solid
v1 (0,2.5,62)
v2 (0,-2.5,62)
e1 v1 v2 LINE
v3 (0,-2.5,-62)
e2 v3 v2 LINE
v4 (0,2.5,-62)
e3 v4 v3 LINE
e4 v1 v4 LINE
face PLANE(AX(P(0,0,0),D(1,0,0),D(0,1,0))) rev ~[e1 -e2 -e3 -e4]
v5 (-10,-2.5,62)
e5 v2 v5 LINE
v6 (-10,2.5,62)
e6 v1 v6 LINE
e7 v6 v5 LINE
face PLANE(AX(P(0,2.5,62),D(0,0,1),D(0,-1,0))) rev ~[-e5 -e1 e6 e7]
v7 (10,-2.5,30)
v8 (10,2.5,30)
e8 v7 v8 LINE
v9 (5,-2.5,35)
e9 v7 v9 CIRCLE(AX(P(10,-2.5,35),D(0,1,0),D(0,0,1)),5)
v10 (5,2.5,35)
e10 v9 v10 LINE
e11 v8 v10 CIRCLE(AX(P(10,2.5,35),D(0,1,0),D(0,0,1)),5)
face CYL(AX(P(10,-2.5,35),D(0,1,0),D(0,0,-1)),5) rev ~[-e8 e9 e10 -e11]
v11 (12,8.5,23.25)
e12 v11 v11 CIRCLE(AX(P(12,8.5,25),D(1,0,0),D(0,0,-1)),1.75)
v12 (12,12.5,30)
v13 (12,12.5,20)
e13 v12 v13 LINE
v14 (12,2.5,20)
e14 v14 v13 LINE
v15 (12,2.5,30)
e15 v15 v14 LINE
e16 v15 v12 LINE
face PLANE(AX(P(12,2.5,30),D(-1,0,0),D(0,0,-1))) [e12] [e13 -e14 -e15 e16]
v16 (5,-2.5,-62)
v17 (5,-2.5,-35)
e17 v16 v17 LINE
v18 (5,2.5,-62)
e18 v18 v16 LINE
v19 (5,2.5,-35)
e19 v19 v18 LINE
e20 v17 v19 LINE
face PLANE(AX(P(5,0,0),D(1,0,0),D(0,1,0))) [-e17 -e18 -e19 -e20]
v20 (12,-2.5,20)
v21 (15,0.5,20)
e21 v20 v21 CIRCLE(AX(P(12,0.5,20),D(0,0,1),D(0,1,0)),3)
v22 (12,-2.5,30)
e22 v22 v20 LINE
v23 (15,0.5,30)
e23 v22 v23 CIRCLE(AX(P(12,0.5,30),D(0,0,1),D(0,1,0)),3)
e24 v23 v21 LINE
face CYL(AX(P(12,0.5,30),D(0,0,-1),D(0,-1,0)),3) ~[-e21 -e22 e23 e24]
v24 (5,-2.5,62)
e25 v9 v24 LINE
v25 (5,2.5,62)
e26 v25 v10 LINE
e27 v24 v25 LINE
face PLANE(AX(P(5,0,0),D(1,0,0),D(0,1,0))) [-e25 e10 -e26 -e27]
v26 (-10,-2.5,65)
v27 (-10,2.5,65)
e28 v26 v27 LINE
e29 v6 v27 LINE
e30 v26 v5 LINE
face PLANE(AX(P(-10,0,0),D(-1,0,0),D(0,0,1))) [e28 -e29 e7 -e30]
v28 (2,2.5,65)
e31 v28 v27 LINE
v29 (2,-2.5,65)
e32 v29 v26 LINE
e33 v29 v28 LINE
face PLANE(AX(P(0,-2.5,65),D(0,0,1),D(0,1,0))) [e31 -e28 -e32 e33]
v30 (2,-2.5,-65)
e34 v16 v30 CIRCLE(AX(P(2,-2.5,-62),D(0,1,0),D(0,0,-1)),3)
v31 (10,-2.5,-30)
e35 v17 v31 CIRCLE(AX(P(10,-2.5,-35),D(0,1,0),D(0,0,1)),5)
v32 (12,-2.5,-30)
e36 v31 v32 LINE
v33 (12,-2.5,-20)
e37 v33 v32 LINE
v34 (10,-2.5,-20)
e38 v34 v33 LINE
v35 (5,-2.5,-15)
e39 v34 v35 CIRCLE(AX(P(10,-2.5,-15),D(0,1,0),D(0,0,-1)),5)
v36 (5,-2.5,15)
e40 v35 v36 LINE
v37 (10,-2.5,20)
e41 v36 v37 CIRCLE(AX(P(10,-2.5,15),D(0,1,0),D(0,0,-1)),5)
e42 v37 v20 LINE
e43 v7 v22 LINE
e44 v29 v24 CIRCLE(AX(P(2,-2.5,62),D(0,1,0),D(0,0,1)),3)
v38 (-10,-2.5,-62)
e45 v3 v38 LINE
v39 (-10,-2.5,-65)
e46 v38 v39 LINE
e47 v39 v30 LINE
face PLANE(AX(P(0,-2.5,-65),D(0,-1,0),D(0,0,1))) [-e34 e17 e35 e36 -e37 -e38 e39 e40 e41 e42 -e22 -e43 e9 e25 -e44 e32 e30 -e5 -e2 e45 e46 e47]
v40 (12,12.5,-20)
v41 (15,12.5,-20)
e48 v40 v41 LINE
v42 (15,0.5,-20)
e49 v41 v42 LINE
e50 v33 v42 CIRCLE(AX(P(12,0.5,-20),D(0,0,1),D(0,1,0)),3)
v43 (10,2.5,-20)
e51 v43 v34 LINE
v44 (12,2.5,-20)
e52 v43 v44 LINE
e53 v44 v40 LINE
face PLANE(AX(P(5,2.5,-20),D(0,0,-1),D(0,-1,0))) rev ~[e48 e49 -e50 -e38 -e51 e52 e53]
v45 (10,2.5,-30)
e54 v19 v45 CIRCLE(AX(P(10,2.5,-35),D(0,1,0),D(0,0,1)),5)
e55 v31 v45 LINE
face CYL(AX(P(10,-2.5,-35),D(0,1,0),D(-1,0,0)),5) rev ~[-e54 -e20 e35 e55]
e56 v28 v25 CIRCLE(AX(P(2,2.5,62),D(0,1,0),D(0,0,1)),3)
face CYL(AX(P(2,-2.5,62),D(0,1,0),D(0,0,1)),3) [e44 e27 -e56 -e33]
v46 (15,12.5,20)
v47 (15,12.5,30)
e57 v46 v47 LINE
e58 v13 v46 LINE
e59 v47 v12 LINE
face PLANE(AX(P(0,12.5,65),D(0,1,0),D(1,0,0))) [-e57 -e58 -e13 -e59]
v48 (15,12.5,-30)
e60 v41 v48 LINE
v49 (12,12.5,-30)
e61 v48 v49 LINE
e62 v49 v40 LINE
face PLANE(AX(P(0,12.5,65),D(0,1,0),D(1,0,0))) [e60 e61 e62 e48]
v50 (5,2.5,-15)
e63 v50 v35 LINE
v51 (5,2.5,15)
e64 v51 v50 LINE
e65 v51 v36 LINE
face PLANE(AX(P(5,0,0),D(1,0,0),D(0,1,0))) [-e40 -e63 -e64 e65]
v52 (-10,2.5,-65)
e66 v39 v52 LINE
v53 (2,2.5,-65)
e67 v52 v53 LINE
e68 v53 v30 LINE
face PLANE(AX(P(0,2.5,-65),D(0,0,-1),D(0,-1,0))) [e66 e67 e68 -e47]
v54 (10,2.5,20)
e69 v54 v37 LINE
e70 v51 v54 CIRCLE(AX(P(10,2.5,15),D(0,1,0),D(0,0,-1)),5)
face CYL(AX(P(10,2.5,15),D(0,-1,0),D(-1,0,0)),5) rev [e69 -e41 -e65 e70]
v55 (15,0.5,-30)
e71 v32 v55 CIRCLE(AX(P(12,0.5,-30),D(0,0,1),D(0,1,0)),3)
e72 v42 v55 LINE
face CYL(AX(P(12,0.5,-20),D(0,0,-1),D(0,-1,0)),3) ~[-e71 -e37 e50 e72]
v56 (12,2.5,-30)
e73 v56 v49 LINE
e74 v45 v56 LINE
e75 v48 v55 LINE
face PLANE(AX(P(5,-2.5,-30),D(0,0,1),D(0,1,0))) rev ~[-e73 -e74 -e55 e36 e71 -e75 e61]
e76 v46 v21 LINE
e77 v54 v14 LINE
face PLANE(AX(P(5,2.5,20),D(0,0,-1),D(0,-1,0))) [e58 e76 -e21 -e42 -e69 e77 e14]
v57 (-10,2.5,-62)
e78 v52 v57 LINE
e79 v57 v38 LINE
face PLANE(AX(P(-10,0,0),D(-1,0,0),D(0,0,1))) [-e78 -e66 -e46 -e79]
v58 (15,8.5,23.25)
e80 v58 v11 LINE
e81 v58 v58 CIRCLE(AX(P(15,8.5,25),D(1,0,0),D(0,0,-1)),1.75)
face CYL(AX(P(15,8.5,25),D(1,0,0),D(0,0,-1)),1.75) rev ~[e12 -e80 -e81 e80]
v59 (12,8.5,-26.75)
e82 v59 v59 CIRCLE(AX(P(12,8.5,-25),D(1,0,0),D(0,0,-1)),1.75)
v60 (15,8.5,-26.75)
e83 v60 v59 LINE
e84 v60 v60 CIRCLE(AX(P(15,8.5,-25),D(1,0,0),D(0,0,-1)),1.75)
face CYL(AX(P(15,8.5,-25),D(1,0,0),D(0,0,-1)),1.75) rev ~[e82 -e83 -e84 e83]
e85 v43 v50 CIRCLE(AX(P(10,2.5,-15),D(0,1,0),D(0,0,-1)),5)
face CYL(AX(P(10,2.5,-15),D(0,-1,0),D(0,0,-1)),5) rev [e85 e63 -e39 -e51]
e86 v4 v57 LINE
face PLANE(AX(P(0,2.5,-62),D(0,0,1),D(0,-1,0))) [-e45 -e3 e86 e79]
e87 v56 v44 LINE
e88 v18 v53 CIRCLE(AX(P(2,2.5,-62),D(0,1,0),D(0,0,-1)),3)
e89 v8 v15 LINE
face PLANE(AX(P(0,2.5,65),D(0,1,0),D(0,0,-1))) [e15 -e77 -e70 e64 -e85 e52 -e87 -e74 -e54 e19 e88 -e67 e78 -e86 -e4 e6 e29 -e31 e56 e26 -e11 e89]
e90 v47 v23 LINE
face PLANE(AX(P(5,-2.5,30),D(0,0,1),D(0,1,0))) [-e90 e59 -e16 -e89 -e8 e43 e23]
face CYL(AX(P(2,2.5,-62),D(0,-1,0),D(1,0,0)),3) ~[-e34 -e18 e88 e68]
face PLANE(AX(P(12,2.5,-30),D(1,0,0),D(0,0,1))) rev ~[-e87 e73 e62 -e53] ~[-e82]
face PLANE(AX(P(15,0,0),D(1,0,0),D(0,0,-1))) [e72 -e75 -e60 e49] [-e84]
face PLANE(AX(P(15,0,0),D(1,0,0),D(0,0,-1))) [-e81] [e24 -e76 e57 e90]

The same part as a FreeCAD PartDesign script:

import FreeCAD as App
import Part
import Sketcher
from FreeCAD import Vector


def edges_at(feature, points):
    """Names of the edges that pass closest to the given points."""
    edges = feature.Shape.Edges
    near = lambda p: min(range(len(edges)), key=lambda i: edges[i].distToShape(Part.Vertex(*p))[0])
    return sorted({f"Edge{near(p) + 1}" for p in points})

doc = App.newDocument("Part")
body = doc.addObject("PartDesign::Body", "Body")

# Sketch on YZ plane
sketch1 = body.newObject("Sketcher::SketchObject", "Sketch")
sketch1.AttachmentSupport = (doc.getObject("YZ_Plane"), [""])
sketch1.MapMode = "FlatFace"
sketch1.addGeometry(Part.LineSegment(Vector(-2, 65, 0), Vector(-2, -65, 0)), False)
sketch1.addGeometry(Part.LineSegment(Vector(-2, -65, 0), Vector(2, -65, 0)), False)
sketch1.addGeometry(Part.LineSegment(Vector(2, -65, 0), Vector(2, 65, 0)), False)
sketch1.addGeometry(Part.LineSegment(Vector(2, 65, 0), Vector(-2, 65, 0)), False)
sketch1.addConstraint(Sketcher.Constraint("Coincident", 0, 2, 1, 1))
sketch1.addConstraint(Sketcher.Constraint("Coincident", 1, 2, 2, 1))
sketch1.addConstraint(Sketcher.Constraint("Coincident", 2, 2, 3, 1))
sketch1.addConstraint(Sketcher.Constraint("Coincident", 3, 2, 0, 1))
sketch1.addConstraint(Sketcher.Constraint("Vertical", 0))
sketch1.addConstraint(Sketcher.Constraint("Horizontal", 1))
sketch1.addConstraint(Sketcher.Constraint("Vertical", 2))
sketch1.addConstraint(Sketcher.Constraint("Horizontal", 3))
sketch1.addConstraint(Sketcher.Constraint("Symmetric", 0, 2, 2, 2, -1, 1))
sketch1.addConstraint(Sketcher.Constraint("DistanceX", 1, 1, 1, 2, 5.0))
sketch1.addConstraint(Sketcher.Constraint("DistanceY", 0, 2, 0, 1, 130.0))
pad1 = body.newObject("PartDesign::Pad", "Pad")
pad1.Profile = sketch1
pad1.Length = 5

# Sketch on YZ plane
sketch2 = body.newObject("Sketcher::SketchObject", "Sketch001")
sketch2.AttachmentSupport = (doc.getObject("YZ_Plane"), [""])
sketch2.MapMode = "FlatFace"
sketch2.AttachmentOffset = App.Placement(Vector(0, 0, 5), App.Rotation())
sketch2.addGeometry(Part.LineSegment(Vector(-2, -30, 0), Vector(2, -30, 0)), False)
sketch2.addGeometry(Part.LineSegment(Vector(2, -30, 0), Vector(2, -20, 0)), False)
sketch2.addGeometry(Part.LineSegment(Vector(2, -20, 0), Vector(-2, -20, 0)), False)
sketch2.addGeometry(Part.LineSegment(Vector(-2, -20, 0), Vector(-2, -30, 0)), False)
sketch2.addGeometry(Part.LineSegment(Vector(-2, 20, 0), Vector(2, 20, 0)), False)
sketch2.addGeometry(Part.LineSegment(Vector(2, 20, 0), Vector(2, 30, 0)), False)
sketch2.addGeometry(Part.LineSegment(Vector(2, 30, 0), Vector(-2, 30, 0)), False)
sketch2.addGeometry(Part.LineSegment(Vector(-2, 30, 0), Vector(-2, 20, 0)), False)
sketch2.addConstraint(Sketcher.Constraint("Coincident", 0, 2, 1, 1))
sketch2.addConstraint(Sketcher.Constraint("Coincident", 1, 2, 2, 1))
sketch2.addConstraint(Sketcher.Constraint("Coincident", 2, 2, 3, 1))
sketch2.addConstraint(Sketcher.Constraint("Coincident", 3, 2, 0, 1))
sketch2.addConstraint(Sketcher.Constraint("Coincident", 4, 2, 5, 1))
sketch2.addConstraint(Sketcher.Constraint("Coincident", 5, 2, 6, 1))
sketch2.addConstraint(Sketcher.Constraint("Coincident", 6, 2, 7, 1))
sketch2.addConstraint(Sketcher.Constraint("Coincident", 7, 2, 4, 1))
sketch2.addConstraint(Sketcher.Constraint("Horizontal", 0))
sketch2.addConstraint(Sketcher.Constraint("Vertical", 1))
sketch2.addConstraint(Sketcher.Constraint("Horizontal", 2))
sketch2.addConstraint(Sketcher.Constraint("Vertical", 3))
sketch2.addConstraint(Sketcher.Constraint("Horizontal", 4))
sketch2.addConstraint(Sketcher.Constraint("Vertical", 5))
sketch2.addConstraint(Sketcher.Constraint("Horizontal", 6))
sketch2.addConstraint(Sketcher.Constraint("Vertical", 7))
sketch2.addConstraint(Sketcher.Constraint("Symmetric", 2, 2, 4, 2, -1, 1))
sketch2.addConstraint(Sketcher.Constraint("Symmetric", 0, 2, 6, 2, -1, 1))
sketch2.addConstraint(Sketcher.Constraint("Vertical", 1, 2, 4, 2))
sketch2.addConstraint(Sketcher.Constraint("DistanceY", 1, 1, 1, 2, 10.0))
sketch2.addConstraint(Sketcher.Constraint("DistanceY", 1, 2, -1, 1, 20.0))
sketch2.addConstraint(Sketcher.Constraint("DistanceX", 0, 1, 0, 2, 5.0))
pad2 = body.newObject("PartDesign::Pad", "Pad001")
pad2.Profile = sketch2
pad2.Length = 10

# Sketch on XZ plane
sketch3 = body.newObject("Sketcher::SketchObject", "Sketch002")
sketch3.AttachmentSupport = (doc.getObject("XZ_Plane"), [""])
sketch3.MapMode = "FlatFace"
sketch3.AttachmentOffset = App.Placement(Vector(0, 0, -2.5), App.Rotation())
sketch3.addGeometry(Part.LineSegment(Vector(15, 30, 0), Vector(15, 20, 0)), False)
sketch3.addGeometry(Part.LineSegment(Vector(15, 20, 0), Vector(12, 20, 0)), False)
sketch3.addGeometry(Part.LineSegment(Vector(12, 20, 0), Vector(12, 30, 0)), False)
sketch3.addGeometry(Part.LineSegment(Vector(12, 30, 0), Vector(15, 30, 0)), False)
sketch3.addGeometry(Part.LineSegment(Vector(12, -20, 0), Vector(15, -20, 0)), False)
sketch3.addGeometry(Part.LineSegment(Vector(15, -20, 0), Vector(15, -30, 0)), False)
sketch3.addGeometry(Part.LineSegment(Vector(15, -30, 0), Vector(12, -30, 0)), False)
sketch3.addGeometry(Part.LineSegment(Vector(12, -30, 0), Vector(12, -20, 0)), False)
sketch3.addConstraint(Sketcher.Constraint("Coincident", 0, 2, 1, 1))
sketch3.addConstraint(Sketcher.Constraint("Coincident", 1, 2, 2, 1))
sketch3.addConstraint(Sketcher.Constraint("Coincident", 2, 2, 3, 1))
sketch3.addConstraint(Sketcher.Constraint("Coincident", 3, 2, 0, 1))
sketch3.addConstraint(Sketcher.Constraint("Coincident", 4, 2, 5, 1))
sketch3.addConstraint(Sketcher.Constraint("Coincident", 5, 2, 6, 1))
sketch3.addConstraint(Sketcher.Constraint("Coincident", 6, 2, 7, 1))
sketch3.addConstraint(Sketcher.Constraint("Coincident", 7, 2, 4, 1))
sketch3.addConstraint(Sketcher.Constraint("Vertical", 0))
sketch3.addConstraint(Sketcher.Constraint("Horizontal", 1))
sketch3.addConstraint(Sketcher.Constraint("Vertical", 2))
sketch3.addConstraint(Sketcher.Constraint("Horizontal", 3))
sketch3.addConstraint(Sketcher.Constraint("Horizontal", 4))
sketch3.addConstraint(Sketcher.Constraint("Vertical", 5))
sketch3.addConstraint(Sketcher.Constraint("Horizontal", 6))
sketch3.addConstraint(Sketcher.Constraint("Vertical", 7))
sketch3.addConstraint(Sketcher.Constraint("Symmetric", 0, 2, 4, 2, -1))
sketch3.addConstraint(Sketcher.Constraint("Symmetric", 2, 2, 6, 2, -1))
sketch3.addConstraint(Sketcher.Constraint("DistanceX", 1, 2, 1, 1, 3.0))
sketch3.addConstraint(Sketcher.Constraint("DistanceY", 0, 2, 0, 1, 10.0))
sketch3.addConstraint(Sketcher.Constraint("DistanceX", -1, 1, 0, 2, 15.0))
sketch3.addConstraint(Sketcher.Constraint("DistanceY", -1, 1, 0, 2, 20.0))
pad3 = body.newObject("PartDesign::Pad", "Pad002")
pad3.Profile = sketch3
pad3.Length = 10
pad3.Reversed = True

# Sketch on YZ plane
sketch4 = body.newObject("Sketcher::SketchObject", "Sketch003")
sketch4.AttachmentSupport = (doc.getObject("YZ_Plane"), [""])
sketch4.MapMode = "FlatFace"
sketch4.AttachmentOffset = App.Placement(Vector(0, 0, 15), App.Rotation())
sketch4.addGeometry(Part.Circle(Vector(8.5, 25, 0), Vector(0, 0, 1), 1.8), False)
sketch4.addGeometry(Part.Circle(Vector(8.5, -25, 0), Vector(0, 0, 1), 1.8), False)
sketch4.addConstraint(Sketcher.Constraint("Equal", 0, 1))
sketch4.addConstraint(Sketcher.Constraint("Symmetric", 0, 3, 1, 3, -1))
sketch4.addConstraint(Sketcher.Constraint("Diameter", 0, 3.5))
sketch4.addConstraint(Sketcher.Constraint("DistanceY", -1, 1, 0, 3, 25.0))
sketch4.addConstraint(Sketcher.Constraint("DistanceX", -1, 1, 0, 3, 8.5))
pocket1 = body.newObject("PartDesign::Pocket", "Pocket")
pocket1.Profile = sketch4
pocket1.Length = 10
doc.recompute()

fillet = body.newObject("PartDesign::Fillet", "Fillet")
fillet.Base = (pocket1, edges_at(pocket1, [
    (5, 0, 30),
    (5, 0, -20),
    (5, 0, 20),
    (5, 0, -30),
]))
fillet.Radius = 5
doc.recompute()

fillet2 = body.newObject("PartDesign::Fillet", "Fillet001")
fillet2.Base = (fillet, edges_at(fillet, [(15, -2.5, 25), (15, -2.5, -25)]))
fillet2.Radius = 3
doc.recompute()

fillet3 = body.newObject("PartDesign::Fillet", "Fillet002")
fillet3.Base = (fillet2, edges_at(fillet2, [(5, 0, -65), (5, 0, 65)]))
fillet3.Radius = 3

# Sketch on YZ plane
sketch5 = body.newObject("Sketcher::SketchObject", "Sketch004")
sketch5.AttachmentSupport = (doc.getObject("YZ_Plane"), [""])
sketch5.MapMode = "FlatFace"
sketch5.addGeometry(Part.LineSegment(Vector(2.5, -62, 0), Vector(2.5, -65, 0)), False)
sketch5.addGeometry(Part.LineSegment(Vector(2.5, -65, 0), Vector(-2.5, -65, 0)), False)
sketch5.addGeometry(Part.LineSegment(Vector(-2.5, -65, 0), Vector(-2.5, -62, 0)), False)
sketch5.addGeometry(Part.LineSegment(Vector(-2.5, -62, 0), Vector(2.5, -62, 0)), False)
sketch5.addGeometry(Part.LineSegment(Vector(2.5, 65, 0), Vector(2.5, 62, 0)), False)
sketch5.addGeometry(Part.LineSegment(Vector(2.5, 62, 0), Vector(-2.5, 62, 0)), False)
sketch5.addGeometry(Part.LineSegment(Vector(-2.5, 62, 0), Vector(-2.5, 65, 0)), False)
sketch5.addGeometry(Part.LineSegment(Vector(-2.5, 65, 0), Vector(2.5, 65, 0)), False)
sketch5.addConstraint(Sketcher.Constraint("Coincident", 0, 2, 1, 1))
sketch5.addConstraint(Sketcher.Constraint("Coincident", 1, 2, 2, 1))
sketch5.addConstraint(Sketcher.Constraint("Coincident", 2, 2, 3, 1))
sketch5.addConstraint(Sketcher.Constraint("Coincident", 3, 2, 0, 1))
sketch5.addConstraint(Sketcher.Constraint("Coincident", 4, 2, 5, 1))
sketch5.addConstraint(Sketcher.Constraint("Coincident", 5, 2, 6, 1))
sketch5.addConstraint(Sketcher.Constraint("Coincident", 6, 2, 7, 1))
sketch5.addConstraint(Sketcher.Constraint("Coincident", 7, 2, 4, 1))
sketch5.addConstraint(Sketcher.Constraint("Vertical", 0))
sketch5.addConstraint(Sketcher.Constraint("Horizontal", 1))
sketch5.addConstraint(Sketcher.Constraint("Vertical", 2))
sketch5.addConstraint(Sketcher.Constraint("Horizontal", 3))
sketch5.addConstraint(Sketcher.Constraint("Vertical", 4))
sketch5.addConstraint(Sketcher.Constraint("Horizontal", 5))
sketch5.addConstraint(Sketcher.Constraint("Vertical", 6))
sketch5.addConstraint(Sketcher.Constraint("Horizontal", 7))
sketch5.addConstraint(Sketcher.Constraint("Symmetric", 2, 2, 4, 2, -1, 1))
sketch5.addConstraint(Sketcher.Constraint("Symmetric", 0, 2, 6, 2, -1, 1))
sketch5.addConstraint(Sketcher.Constraint("Vertical", 3, 2, 4, 2))
sketch5.addConstraint(Sketcher.Constraint("DistanceX", 1, 2, 1, 1, 5.0))
sketch5.addConstraint(Sketcher.Constraint("DistanceY", 0, 2, 0, 1, 3.0))
sketch5.addConstraint(Sketcher.Constraint("DistanceY", 0, 2, -1, 1, 65.0))
pad4 = body.newObject("PartDesign::Pad", "Pad003")
pad4.Profile = sketch5
pad4.Length = 10
pad4.Reversed = True

doc.recompute()
